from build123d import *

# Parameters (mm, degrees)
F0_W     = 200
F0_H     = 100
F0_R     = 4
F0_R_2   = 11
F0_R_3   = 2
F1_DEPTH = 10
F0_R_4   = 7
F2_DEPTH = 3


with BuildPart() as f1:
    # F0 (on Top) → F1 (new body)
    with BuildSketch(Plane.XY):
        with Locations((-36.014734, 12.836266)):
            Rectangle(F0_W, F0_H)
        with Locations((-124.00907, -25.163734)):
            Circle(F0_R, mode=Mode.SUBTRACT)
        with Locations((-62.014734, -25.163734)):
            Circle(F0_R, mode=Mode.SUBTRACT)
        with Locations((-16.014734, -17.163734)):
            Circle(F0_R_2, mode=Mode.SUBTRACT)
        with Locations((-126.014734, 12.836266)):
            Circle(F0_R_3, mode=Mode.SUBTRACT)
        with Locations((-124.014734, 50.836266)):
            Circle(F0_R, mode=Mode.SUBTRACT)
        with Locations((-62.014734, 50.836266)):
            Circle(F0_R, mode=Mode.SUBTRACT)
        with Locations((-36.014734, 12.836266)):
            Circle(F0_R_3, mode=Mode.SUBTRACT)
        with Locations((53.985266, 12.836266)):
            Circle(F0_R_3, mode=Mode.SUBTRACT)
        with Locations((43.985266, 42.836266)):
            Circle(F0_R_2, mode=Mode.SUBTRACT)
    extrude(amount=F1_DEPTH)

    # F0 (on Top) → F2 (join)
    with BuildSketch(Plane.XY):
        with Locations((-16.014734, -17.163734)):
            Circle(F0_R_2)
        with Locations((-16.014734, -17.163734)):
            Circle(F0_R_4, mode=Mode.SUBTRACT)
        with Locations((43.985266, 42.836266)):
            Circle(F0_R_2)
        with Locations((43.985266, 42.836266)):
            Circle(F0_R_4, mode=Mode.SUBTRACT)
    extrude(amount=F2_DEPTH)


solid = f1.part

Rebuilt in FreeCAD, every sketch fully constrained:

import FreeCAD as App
import Part
import Sketcher
from FreeCAD import Vector

doc = App.newDocument("Part")
body = doc.addObject("PartDesign::Body", "Body")

# Sketch on XY plane
sketch1 = doc.addObject("Sketcher::SketchObject", "Sketch")
body.addObject(sketch1)
sketch1.AttachmentSupport = (doc.XY_Plane, [""])
sketch1.MapMode = "FlatFace"
sketch1.addGeometry([
    Part.LineSegment(Vector(-136.014734, 62.836266, 0), Vector(-136.014734, -37.163734, 0)),  # 0
    Part.LineSegment(Vector(-136.014734, -37.163734, 0), Vector(63.985266, -37.163734, 0)),  # 1
    Part.LineSegment(Vector(63.985266, -37.163734, 0), Vector(63.985266, 62.836266, 0)),  # 2
    Part.LineSegment(Vector(63.985266, 62.836266, 0), Vector(-136.014734, 62.836266, 0)),  # 3
    Part.Circle(Vector(-124.00907, -25.163734, 0), Vector(0, 0, 1), 4),  # 4
    Part.Circle(Vector(-62.014734, -25.163734, 0), Vector(0, 0, 1), 4),  # 5
    Part.Circle(Vector(-16.014734, -17.163734, 0), Vector(0, 0, 1), 11),  # 6
    Part.Circle(Vector(-126.014734, 12.836266, 0), Vector(0, 0, 1), 2),  # 7
    Part.Circle(Vector(-124.014734, 50.836266, 0), Vector(0, 0, 1), 4),  # 8
    Part.Circle(Vector(-62.014734, 50.836266, 0), Vector(0, 0, 1), 4),  # 9
    Part.Circle(Vector(-36.014734, 12.836266, 0), Vector(0, 0, 1), 2),  # 10
    Part.Circle(Vector(53.985266, 12.836266, 0), Vector(0, 0, 1), 2),  # 11
    Part.Circle(Vector(43.985266, 42.836266, 0), Vector(0, 0, 1), 11),  # 12
], False)
sketch1.addConstraint([
    Sketcher.Constraint("Coincident", 0, 2, 1, 1),
    Sketcher.Constraint("Coincident", 1, 2, 2, 1),
    Sketcher.Constraint("Coincident", 2, 2, 3, 1),
    Sketcher.Constraint("Coincident", 3, 2, 0, 1),
    Sketcher.Constraint("Vertical", 0),
    Sketcher.Constraint("Horizontal", 1),
    Sketcher.Constraint("Vertical", 2),
    Sketcher.Constraint("Horizontal", 3),
    Sketcher.Constraint("Equal", 4, 5),
    Sketcher.Constraint("Equal", 5, 8),
    Sketcher.Constraint("Equal", 8, 9),
    Sketcher.Constraint("Equal", 7, 10),
    Sketcher.Constraint("Equal", 10, 11),
    Sketcher.Constraint("Equal", 6, 12),
    Sketcher.Constraint("Horizontal", 4, 3, 5, 3),
    Sketcher.Constraint("Horizontal", 8, 3, 9, 3),
    Sketcher.Constraint("Horizontal", 7, 3, 10, 3),
    Sketcher.Constraint("Horizontal", 10, 3, 11, 3),
    Sketcher.Constraint("Vertical", 5, 3, 9, 3),
    Sketcher.Constraint("Diameter", 4, 8.0),
    Sketcher.Constraint("Diameter", 6, 22.0),
    Sketcher.Constraint("Diameter", 7, 4.0),
    Sketcher.Constraint("DistanceX", 1, 1, 1, 2, 200.0),
    Sketcher.Constraint("DistanceY", 0, 2, 0, 1, 100.0),
    Sketcher.Constraint("DistanceX", 5, 3, 6, 3, 46.0),
    Sketcher.Constraint("DistanceY", 5, 3, 6, 3, 8.0),
    Sketcher.Constraint("DistanceY", 4, 3, 7, 3, 38.0),
    Sketcher.Constraint("DistanceX", 7, 3, 5, 3, 64.0),
    Sketcher.Constraint("DistanceX", 7, 3, 8, 3, 2.0),
    Sketcher.Constraint("DistanceY", 7, 3, 8, 3, 38.0),
    Sketcher.Constraint("DistanceX", 10, 3, 6, 3, 20.0),
    Sketcher.Constraint("DistanceX", 6, 3, 11, 3, 70.0),
    Sketcher.Constraint("DistanceX", 12, 3, 11, 3, 10.0),
    Sketcher.Constraint("DistanceY", 11, 3, 12, 3, 30.0),
    Sketcher.Constraint("DistanceY", 0, 2, 4, 3, 12.0),
    Sketcher.Constraint("DistanceX", 0, 2, 7, 3, 10.0),
    Sketcher.Constraint("DistanceX", 4, 3, -1, 1, 124.00907),
    Sketcher.Constraint("DistanceY", 4, 3, -1, 1, 25.163734),
    Sketcher.Constraint("DistanceX", 5, 3, -1, 1, 62.014734),
])
pad1 = doc.addObject("PartDesign::Pad", "Pad")
body.addObject(pad1)
pad1.Profile = sketch1
pad1.Length = 10

# Sketch on XY plane
sketch2 = doc.addObject("Sketcher::SketchObject", "Sketch001")
body.addObject(sketch2)
sketch2.AttachmentSupport = (doc.XY_Plane, [""])
sketch2.MapMode = "FlatFace"
sketch2.addGeometry([
    Part.Circle(Vector(-16.014734, -17.163734, 0), Vector(0, 0, 1), 11),
    Part.Circle(Vector(-16.014734, -17.163734, 0), Vector(0, 0, 1), 7),
    Part.Circle(Vector(43.985266, 42.836266, 0), Vector(0, 0, 1), 11),
    Part.Circle(Vector(43.985266, 42.836266, 0), Vector(0, 0, 1), 7),
], False)
sketch2.addConstraint([
    Sketcher.Constraint("Coincident", 1, 3, 0, 3),
    Sketcher.Constraint("Coincident", 3, 3, 2, 3),
    Sketcher.Constraint("Equal", 0, 2),
    Sketcher.Constraint("Equal", 1, 3),
    Sketcher.Constraint("Diameter", 0, 22.0),
    Sketcher.Constraint("Diameter", 1, 14.0),
    Sketcher.Constraint("DistanceX", 0, 3, 2, 3, 60.0),
    Sketcher.Constraint("DistanceY", 0, 3, 2, 3, 60.0),
    Sketcher.Constraint("DistanceX", 0, 3, -1, 1, 16.014734),
    Sketcher.Constraint("DistanceY", 0, 3, -1, 1, 17.163734),
])
pad2 = doc.addObject("PartDesign::Pad", "Pad001")
body.addObject(pad2)
pad2.Profile = sketch2
pad2.Length = 3

doc.recompute()
